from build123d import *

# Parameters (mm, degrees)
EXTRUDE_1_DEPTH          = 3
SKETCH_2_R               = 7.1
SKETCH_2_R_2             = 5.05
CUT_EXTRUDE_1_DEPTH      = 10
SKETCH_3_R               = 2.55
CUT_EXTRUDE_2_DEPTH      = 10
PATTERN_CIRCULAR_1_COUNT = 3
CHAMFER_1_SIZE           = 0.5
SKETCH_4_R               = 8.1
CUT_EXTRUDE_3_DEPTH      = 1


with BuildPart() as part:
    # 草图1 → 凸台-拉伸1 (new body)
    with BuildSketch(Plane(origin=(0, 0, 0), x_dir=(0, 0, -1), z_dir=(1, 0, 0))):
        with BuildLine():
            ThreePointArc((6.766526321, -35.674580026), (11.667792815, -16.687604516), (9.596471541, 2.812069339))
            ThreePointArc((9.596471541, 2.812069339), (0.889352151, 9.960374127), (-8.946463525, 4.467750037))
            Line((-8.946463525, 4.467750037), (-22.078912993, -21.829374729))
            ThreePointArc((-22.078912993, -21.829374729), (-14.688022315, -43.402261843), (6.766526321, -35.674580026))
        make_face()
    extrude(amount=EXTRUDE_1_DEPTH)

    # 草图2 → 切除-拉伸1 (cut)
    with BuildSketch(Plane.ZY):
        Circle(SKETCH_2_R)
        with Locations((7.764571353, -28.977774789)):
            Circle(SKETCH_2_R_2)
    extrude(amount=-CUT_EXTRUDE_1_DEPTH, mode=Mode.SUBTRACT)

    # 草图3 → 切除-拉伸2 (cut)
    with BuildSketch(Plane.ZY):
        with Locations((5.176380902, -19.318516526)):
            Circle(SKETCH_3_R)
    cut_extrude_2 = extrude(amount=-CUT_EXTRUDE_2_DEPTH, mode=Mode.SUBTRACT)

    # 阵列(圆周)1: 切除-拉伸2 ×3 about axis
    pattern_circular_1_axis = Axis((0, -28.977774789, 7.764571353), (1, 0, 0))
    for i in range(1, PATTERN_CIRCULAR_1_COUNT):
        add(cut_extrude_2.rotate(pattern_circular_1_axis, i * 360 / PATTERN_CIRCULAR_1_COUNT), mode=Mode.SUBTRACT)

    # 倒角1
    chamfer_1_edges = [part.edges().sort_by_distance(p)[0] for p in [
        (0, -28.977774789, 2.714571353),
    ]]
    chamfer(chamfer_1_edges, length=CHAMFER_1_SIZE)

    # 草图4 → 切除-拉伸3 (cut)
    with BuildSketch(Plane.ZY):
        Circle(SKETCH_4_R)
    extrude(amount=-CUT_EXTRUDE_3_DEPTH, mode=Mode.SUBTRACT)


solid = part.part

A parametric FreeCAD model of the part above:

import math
import FreeCAD as App
import Part
import Sketcher
from FreeCAD import Vector
Q = App.Units.Quantity


def edges_at(feature, points):
    """Names of the edges that pass closest to the given points."""
    edges = feature.Shape.Edges
    near = lambda p: min(range(len(edges)), key=lambda i: edges[i].distToShape(Part.Vertex(*p))[0])
    return sorted({f"Edge{near(p) + 1}" for p in points})

doc = App.newDocument("Part")
params = doc.addObject("Spreadsheet::Sheet", "Params")
for row, (alias, value) in enumerate([
    ("sketch1_radius", "55 mm"),
    ("sketch1_radius2", "10 mm"),
    ("sketch1_radius3", "16 mm"),
    ("pad1_length", "3 mm"),
    ("sketch2_diameter", "14.2 mm"),
    ("sketch2_diameter2", "10.1 mm"),
    ("pocket1_length", "10 mm"),
    ("sketch3_diameter", "5.1 mm"),
    ("pocket2_length", "10 mm"),
    ("chamfer_size", "0.5 mm"),
    ("sketch4_diameter", "16.2 mm"),
    ("pocket3_length", "1 mm"),
], start=1):
    params.set(f"A{row}", alias)
    params.set(f"B{row}", "=" + value)
    params.setAlias(f"B{row}", alias)

body = doc.addObject("PartDesign::Body", "Body")

sketch1 = body.newObject("Sketcher::SketchObject", "Sketch")
sketch1.AttachmentSupport = (doc.getObject("YZ_Plane"), [""])
sketch1.MapMode = "FlatFace"
sketch1.addGeometry(Part.ArcOfCircle(Part.Circle(Vector(-12.654312, 43.184122, 0), Vector(0, 0, 1), 55), math.radians(-114.743097), math.radians(-73.667749)), False)
sketch1.addGeometry(Part.ArcOfCircle(Part.Circle(Vector(0, 0, 0), Vector(0, 0, 1), 10), math.radians(-73.667749), math.radians(63.463041)), False)
sketch1.addGeometry(Part.LineSegment(Vector(4.46775, 8.946464, 0), Vector(-21.829375, 22.078913, 0)), False)
sketch1.addGeometry(Part.ArcOfCircle(Part.Circle(Vector(-28.977775, 7.764571, 0), Vector(0, 0, 1), 16), math.radians(63.463041), math.radians(245.256903)), False)
sketch1.addConstraint(Sketcher.Constraint("Tangent", 0, 2, 1, 1))
sketch1.addConstraint(Sketcher.Constraint("Tangent", 1, 2, 2, 1))
sketch1.addConstraint(Sketcher.Constraint("Tangent", 2, 2, 3, 1))
sketch1.addConstraint(Sketcher.Constraint("Tangent", 3, 2, 0, 1))
sketch1.addConstraint(Sketcher.Constraint("Coincident", 1, 3, -1, 1))
sketch1.addConstraint(Sketcher.Constraint("Radius", 0, Q("55 mm")))
sketch1.addConstraint(Sketcher.Constraint("Radius", 1, Q("10 mm")))
sketch1.addConstraint(Sketcher.Constraint("Radius", 3, Q("16 mm")))
sketch1.addConstraint(Sketcher.Constraint("DistanceX", 3, 3, 2, 2, Q("7.1484 mm")))
sketch1.addConstraint(Sketcher.Constraint("DistanceY", -1, 1, 0, 3, Q("43.184122 mm")))
sketch1.setExpression("Constraints[5]", "Params.sketch1_radius")
sketch1.setExpression("Constraints[6]", "Params.sketch1_radius2")
sketch1.setExpression("Constraints[7]", "Params.sketch1_radius3")
pad1 = body.newObject("PartDesign::Pad", "Pad")
pad1.Profile = sketch1
pad1.setExpression("Length", "Params.pad1_length")

sketch2 = body.newObject("Sketcher::SketchObject", "Sketch001")
sketch2.AttachmentSupport = (doc.getObject("YZ_Plane"), [""])
sketch2.MapMode = "FlatFace"
sketch2.addGeometry(Part.Circle(Vector(0, 0, 0), Vector(0, 0, 1), 7.1), False)
sketch2.addGeometry(Part.Circle(Vector(-28.977775, 7.764571, 0), Vector(0, 0, 1), 5.05), False)
sketch2.addConstraint(Sketcher.Constraint("Coincident", 0, 3, -1, 1))
sketch2.addConstraint(Sketcher.Constraint("Diameter", 0, Q("14.2 mm")))
sketch2.addConstraint(Sketcher.Constraint("Diameter", 1, Q("10.1 mm")))
sketch2.addConstraint(Sketcher.Constraint("DistanceY", -1, 1, 1, 3, Q("7.764571 mm")))
sketch2.addConstraint(Sketcher.Constraint("DistanceX", 1, 3, -1, 1, Q("28.977775 mm")))
sketch2.setExpression("Constraints[1]", "Params.sketch2_diameter")
sketch2.setExpression("Constraints[2]", "Params.sketch2_diameter2")
pocket1 = body.newObject("PartDesign::Pocket", "Pocket")
pocket1.Profile = sketch2
pocket1.setExpression("Length", "Params.pocket1_length")
pocket1.Reversed = True

sketch3 = body.newObject("Sketcher::SketchObject", "Sketch002")
sketch3.AttachmentSupport = (doc.getObject("YZ_Plane"), [""])
sketch3.MapMode = "FlatFace"
sketch3.addGeometry(Part.Circle(Vector(-19.318517, 5.176381, 0), Vector(0, 0, 1), 2.55), False)
sketch3.addConstraint(Sketcher.Constraint("Diameter", 0, Q("5.1 mm")))
sketch3.addConstraint(Sketcher.Constraint("DistanceY", -1, 1, 0, 3, Q("5.176381 mm")))
sketch3.addConstraint(Sketcher.Constraint("DistanceX", 0, 3, -1, 1, Q("19.318517 mm")))
sketch3.setExpression("Constraints[0]", "Params.sketch3_diameter")
pocket2 = body.newObject("PartDesign::Pocket", "Pocket001")
pocket2.Profile = sketch3
pocket2.setExpression("Length", "Params.pocket2_length")
pocket2.Reversed = True
doc.recompute()

datumline = body.newObject("PartDesign::Line", "DatumLine")
datumline.Placement = App.Placement(Vector(0, -28.977775, 7.764571), App.Rotation(Vector(0, 0, 1), Vector(1, 0, 0)))
polarpattern = body.newObject("PartDesign::PolarPattern", "PolarPattern")
polarpattern.Originals = [pocket2]
polarpattern.Axis = (datumline, [""])
polarpattern.Angle = 360
polarpattern.Occurrences = 3
body.Tip = polarpattern
doc.recompute()

chamfer = body.newObject("PartDesign::Chamfer", "Chamfer")
chamfer.Base = (polarpattern, edges_at(polarpattern, [(0, -28.978, 2.715)]))
chamfer.setExpression("Size", "Params.chamfer_size")

sketch4 = body.newObject("Sketcher::SketchObject", "Sketch003")
sketch4.AttachmentSupport = (doc.getObject("YZ_Plane"), [""])
sketch4.MapMode = "FlatFace"
sketch4.addGeometry(Part.Circle(Vector(0, 0, 0), Vector(0, 0, 1), 8.1), False)
sketch4.addConstraint(Sketcher.Constraint("Coincident", 0, 3, -1, 1))
sketch4.addConstraint(Sketcher.Constraint("Diameter", 0, Q("16.2 mm")))
sketch4.setExpression("Constraints[1]", "Params.sketch4_diameter")
pocket3 = body.newObject("PartDesign::Pocket", "Pocket002")
pocket3.Profile = sketch4
pocket3.setExpression("Length", "Params.pocket3_length")
pocket3.Reversed = True

doc.recompute()
